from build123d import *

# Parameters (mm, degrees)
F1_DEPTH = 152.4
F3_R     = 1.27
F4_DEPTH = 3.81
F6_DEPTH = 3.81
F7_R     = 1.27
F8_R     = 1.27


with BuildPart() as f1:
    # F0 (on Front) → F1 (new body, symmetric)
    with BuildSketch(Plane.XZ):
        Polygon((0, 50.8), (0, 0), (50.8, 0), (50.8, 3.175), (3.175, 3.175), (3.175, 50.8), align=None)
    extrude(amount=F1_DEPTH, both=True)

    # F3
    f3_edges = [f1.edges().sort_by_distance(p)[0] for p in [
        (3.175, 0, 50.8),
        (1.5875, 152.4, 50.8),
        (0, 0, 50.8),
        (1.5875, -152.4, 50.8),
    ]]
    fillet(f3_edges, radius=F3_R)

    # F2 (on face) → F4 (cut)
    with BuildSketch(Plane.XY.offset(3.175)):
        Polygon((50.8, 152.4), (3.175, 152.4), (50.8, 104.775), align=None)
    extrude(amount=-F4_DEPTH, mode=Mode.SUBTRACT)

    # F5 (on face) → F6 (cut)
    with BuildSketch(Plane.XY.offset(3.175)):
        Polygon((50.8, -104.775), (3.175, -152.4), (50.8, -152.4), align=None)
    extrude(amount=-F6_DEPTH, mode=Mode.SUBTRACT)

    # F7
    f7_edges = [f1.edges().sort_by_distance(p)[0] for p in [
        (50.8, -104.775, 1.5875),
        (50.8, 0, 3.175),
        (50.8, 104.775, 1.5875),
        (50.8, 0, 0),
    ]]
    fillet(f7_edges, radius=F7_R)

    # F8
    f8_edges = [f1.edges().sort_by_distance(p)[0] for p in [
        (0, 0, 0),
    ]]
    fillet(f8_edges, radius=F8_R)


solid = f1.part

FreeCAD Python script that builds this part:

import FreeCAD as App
import Part
import Sketcher
from FreeCAD import Vector
Q = App.Units.Quantity


def edges_at(feature, points):
    """Names of the edges that pass closest to the given points."""
    edges = feature.Shape.Edges
    near = lambda p: min(range(len(edges)), key=lambda i: edges[i].distToShape(Part.Vertex(*p))[0])
    return sorted({f"Edge{near(p) + 1}" for p in points})

doc = App.newDocument("Part")
body = doc.addObject("PartDesign::Body", "Body")

# Sketch on XZ plane
sketch1 = doc.addObject("Sketcher::SketchObject", "Sketch")
body.addObject(sketch1)
sketch1.AttachmentSupport = (doc.XZ_Plane, [""])
sketch1.MapMode = "FlatFace"
sketch1.addGeometry([
    Part.LineSegment(Vector(0, 50.8, 0), Vector(0, 0, 0)),  # 0
    Part.LineSegment(Vector(0, 0, 0), Vector(50.8, 0, 0)),  # 1
    Part.LineSegment(Vector(50.8, 0, 0), Vector(50.8, 3.2, 0)),  # 2
    Part.LineSegment(Vector(50.8, 3.2, 0), Vector(3.2, 3.2, 0)),  # 3
    Part.LineSegment(Vector(3.2, 3.2, 0), Vector(3.2, 50.8, 0)),  # 4
    Part.LineSegment(Vector(3.2, 50.8, 0), Vector(0, 50.8, 0)),  # 5
], False)
sketch1.addConstraint([
    Sketcher.Constraint("Coincident", 0, 2, 1, 1),
    Sketcher.Constraint("Coincident", 1, 2, 2, 1),
    Sketcher.Constraint("Coincident", 2, 2, 3, 1),
    Sketcher.Constraint("Coincident", 3, 2, 4, 1),
    Sketcher.Constraint("Coincident", 4, 2, 5, 1),
    Sketcher.Constraint("Coincident", 5, 2, 0, 1),
    Sketcher.Constraint("Vertical", 0),
    Sketcher.Constraint("Horizontal", 1),
    Sketcher.Constraint("Vertical", 2),
    Sketcher.Constraint("Horizontal", 3),
    Sketcher.Constraint("Vertical", 4),
    Sketcher.Constraint("Horizontal", 5),
    Sketcher.Constraint("Coincident", 0, 2, -1, 1),
    Sketcher.Constraint("Equal", 1, 0),
    Sketcher.Constraint("Equal", 5, 2),
    Sketcher.Constraint("DistanceX", 1, 1, 1, 2, Q("2 in")),
    Sketcher.Constraint("DistanceX", 3, 2, 3, 1, Q("1.875 in")),
])
pad1 = doc.addObject("PartDesign::Pad", "Pad")
body.addObject(pad1)
pad1.Profile = sketch1
pad1.Length = Q("12 in")
pad1.Midplane = True
doc.recompute()

fillet = doc.addObject("PartDesign::Fillet", "Fillet")
body.addObject(fillet)
fillet.Base = (pad1, edges_at(pad1, [
    (3.175, 0, 50.8),
    (1.587, 152.4, 50.8),
    (0, 0, 50.8),
    (1.587, -152.4, 50.8),
]))
fillet.Radius = Q("0.05 in")

# Sketch on XY plane
sketch2 = doc.addObject("Sketcher::SketchObject", "Sketch001")
body.addObject(sketch2)
sketch2.AttachmentSupport = (doc.XY_Plane, [""])
sketch2.MapMode = "FlatFace"
sketch2.AttachmentOffset = App.Placement(Vector(0, 0, 0.125 * 25.4), App.Rotation())
sketch2.addGeometry([
    Part.LineSegment(Vector(51, 152, 0), Vector(3, 152, 0)),
    Part.LineSegment(Vector(3, 152, 0), Vector(51, 105, 0)),
    Part.LineSegment(Vector(51, 105, 0), Vector(51, 152, 0)),
], False)
sketch2.addConstraint([
    Sketcher.Constraint("Coincident", 0, 2, 1, 1),
    Sketcher.Constraint("Coincident", 1, 2, 2, 1),
    Sketcher.Constraint("Coincident", 2, 2, 0, 1),
    Sketcher.Constraint("Horizontal", 0),
    Sketcher.Constraint("Vertical", 2),
    Sketcher.Constraint("Equal", 0, 2),
    Sketcher.Constraint("DistanceY", -1, 1, 0, 2, Q("6 in")),
    Sketcher.Constraint("DistanceX", -1, 1, 1, 2, Q("2 in")),
    Sketcher.Constraint("DistanceX", 0, 2, 0, 1, Q("1.875 in")),
])
pocket1 = doc.addObject("PartDesign::Pocket", "Pocket")
body.addObject(pocket1)
pocket1.Profile = sketch2
pocket1.Length = Q("0.15 in")

# Sketch on XY plane
sketch3 = doc.addObject("Sketcher::SketchObject", "Sketch002")
body.addObject(sketch3)
sketch3.AttachmentSupport = (doc.XY_Plane, [""])
sketch3.MapMode = "FlatFace"
sketch3.AttachmentOffset = App.Placement(Vector(0, 0, 0.125 * 25.4), App.Rotation())
sketch3.addGeometry([
    Part.LineSegment(Vector(51, -105, 0), Vector(3, -152, 0)),
    Part.LineSegment(Vector(3, -152, 0), Vector(51, -152, 0)),
    Part.LineSegment(Vector(51, -152, 0), Vector(51, -105, 0)),
], False)
sketch3.addConstraint([
    Sketcher.Constraint("Coincident", 0, 2, 1, 1),
    Sketcher.Constraint("Coincident", 1, 2, 2, 1),
    Sketcher.Constraint("Coincident", 2, 2, 0, 1),
    Sketcher.Constraint("Horizontal", 1),
    Sketcher.Constraint("Vertical", 2),
    Sketcher.Constraint("Equal", 1, 2),
    Sketcher.Constraint("DistanceY", 0, 2, -1, 1, Q("6 in")),
    Sketcher.Constraint("DistanceX", -1, 1, 1, 2, Q("2 in")),
    Sketcher.Constraint("DistanceX", 1, 1, 1, 2, Q("1.875 in")),
])
pocket2 = doc.addObject("PartDesign::Pocket", "Pocket001")
body.addObject(pocket2)
pocket2.Profile = sketch3
pocket2.Length = Q("0.15 in")
doc.recompute()

fillet2 = doc.addObject("PartDesign::Fillet", "Fillet001")
body.addObject(fillet2)
fillet2.Base = (pocket2, edges_at(pocket2, [
    (50.8, -104.775, 1.587),
    (50.8, 0, 3.175),
    (50.8, 104.775, 1.587),
    (50.8, 0, 0),
]))
fillet2.Radius = Q("0.05 in")
doc.recompute()

fillet3 = doc.addObject("PartDesign::Fillet", "Fillet002")
body.addObject(fillet3)
fillet3.Base = (fillet2, edges_at(fillet2, [(0, 0, 0)]))
fillet3.Radius = Q("0.05 in")

doc.recompute()
